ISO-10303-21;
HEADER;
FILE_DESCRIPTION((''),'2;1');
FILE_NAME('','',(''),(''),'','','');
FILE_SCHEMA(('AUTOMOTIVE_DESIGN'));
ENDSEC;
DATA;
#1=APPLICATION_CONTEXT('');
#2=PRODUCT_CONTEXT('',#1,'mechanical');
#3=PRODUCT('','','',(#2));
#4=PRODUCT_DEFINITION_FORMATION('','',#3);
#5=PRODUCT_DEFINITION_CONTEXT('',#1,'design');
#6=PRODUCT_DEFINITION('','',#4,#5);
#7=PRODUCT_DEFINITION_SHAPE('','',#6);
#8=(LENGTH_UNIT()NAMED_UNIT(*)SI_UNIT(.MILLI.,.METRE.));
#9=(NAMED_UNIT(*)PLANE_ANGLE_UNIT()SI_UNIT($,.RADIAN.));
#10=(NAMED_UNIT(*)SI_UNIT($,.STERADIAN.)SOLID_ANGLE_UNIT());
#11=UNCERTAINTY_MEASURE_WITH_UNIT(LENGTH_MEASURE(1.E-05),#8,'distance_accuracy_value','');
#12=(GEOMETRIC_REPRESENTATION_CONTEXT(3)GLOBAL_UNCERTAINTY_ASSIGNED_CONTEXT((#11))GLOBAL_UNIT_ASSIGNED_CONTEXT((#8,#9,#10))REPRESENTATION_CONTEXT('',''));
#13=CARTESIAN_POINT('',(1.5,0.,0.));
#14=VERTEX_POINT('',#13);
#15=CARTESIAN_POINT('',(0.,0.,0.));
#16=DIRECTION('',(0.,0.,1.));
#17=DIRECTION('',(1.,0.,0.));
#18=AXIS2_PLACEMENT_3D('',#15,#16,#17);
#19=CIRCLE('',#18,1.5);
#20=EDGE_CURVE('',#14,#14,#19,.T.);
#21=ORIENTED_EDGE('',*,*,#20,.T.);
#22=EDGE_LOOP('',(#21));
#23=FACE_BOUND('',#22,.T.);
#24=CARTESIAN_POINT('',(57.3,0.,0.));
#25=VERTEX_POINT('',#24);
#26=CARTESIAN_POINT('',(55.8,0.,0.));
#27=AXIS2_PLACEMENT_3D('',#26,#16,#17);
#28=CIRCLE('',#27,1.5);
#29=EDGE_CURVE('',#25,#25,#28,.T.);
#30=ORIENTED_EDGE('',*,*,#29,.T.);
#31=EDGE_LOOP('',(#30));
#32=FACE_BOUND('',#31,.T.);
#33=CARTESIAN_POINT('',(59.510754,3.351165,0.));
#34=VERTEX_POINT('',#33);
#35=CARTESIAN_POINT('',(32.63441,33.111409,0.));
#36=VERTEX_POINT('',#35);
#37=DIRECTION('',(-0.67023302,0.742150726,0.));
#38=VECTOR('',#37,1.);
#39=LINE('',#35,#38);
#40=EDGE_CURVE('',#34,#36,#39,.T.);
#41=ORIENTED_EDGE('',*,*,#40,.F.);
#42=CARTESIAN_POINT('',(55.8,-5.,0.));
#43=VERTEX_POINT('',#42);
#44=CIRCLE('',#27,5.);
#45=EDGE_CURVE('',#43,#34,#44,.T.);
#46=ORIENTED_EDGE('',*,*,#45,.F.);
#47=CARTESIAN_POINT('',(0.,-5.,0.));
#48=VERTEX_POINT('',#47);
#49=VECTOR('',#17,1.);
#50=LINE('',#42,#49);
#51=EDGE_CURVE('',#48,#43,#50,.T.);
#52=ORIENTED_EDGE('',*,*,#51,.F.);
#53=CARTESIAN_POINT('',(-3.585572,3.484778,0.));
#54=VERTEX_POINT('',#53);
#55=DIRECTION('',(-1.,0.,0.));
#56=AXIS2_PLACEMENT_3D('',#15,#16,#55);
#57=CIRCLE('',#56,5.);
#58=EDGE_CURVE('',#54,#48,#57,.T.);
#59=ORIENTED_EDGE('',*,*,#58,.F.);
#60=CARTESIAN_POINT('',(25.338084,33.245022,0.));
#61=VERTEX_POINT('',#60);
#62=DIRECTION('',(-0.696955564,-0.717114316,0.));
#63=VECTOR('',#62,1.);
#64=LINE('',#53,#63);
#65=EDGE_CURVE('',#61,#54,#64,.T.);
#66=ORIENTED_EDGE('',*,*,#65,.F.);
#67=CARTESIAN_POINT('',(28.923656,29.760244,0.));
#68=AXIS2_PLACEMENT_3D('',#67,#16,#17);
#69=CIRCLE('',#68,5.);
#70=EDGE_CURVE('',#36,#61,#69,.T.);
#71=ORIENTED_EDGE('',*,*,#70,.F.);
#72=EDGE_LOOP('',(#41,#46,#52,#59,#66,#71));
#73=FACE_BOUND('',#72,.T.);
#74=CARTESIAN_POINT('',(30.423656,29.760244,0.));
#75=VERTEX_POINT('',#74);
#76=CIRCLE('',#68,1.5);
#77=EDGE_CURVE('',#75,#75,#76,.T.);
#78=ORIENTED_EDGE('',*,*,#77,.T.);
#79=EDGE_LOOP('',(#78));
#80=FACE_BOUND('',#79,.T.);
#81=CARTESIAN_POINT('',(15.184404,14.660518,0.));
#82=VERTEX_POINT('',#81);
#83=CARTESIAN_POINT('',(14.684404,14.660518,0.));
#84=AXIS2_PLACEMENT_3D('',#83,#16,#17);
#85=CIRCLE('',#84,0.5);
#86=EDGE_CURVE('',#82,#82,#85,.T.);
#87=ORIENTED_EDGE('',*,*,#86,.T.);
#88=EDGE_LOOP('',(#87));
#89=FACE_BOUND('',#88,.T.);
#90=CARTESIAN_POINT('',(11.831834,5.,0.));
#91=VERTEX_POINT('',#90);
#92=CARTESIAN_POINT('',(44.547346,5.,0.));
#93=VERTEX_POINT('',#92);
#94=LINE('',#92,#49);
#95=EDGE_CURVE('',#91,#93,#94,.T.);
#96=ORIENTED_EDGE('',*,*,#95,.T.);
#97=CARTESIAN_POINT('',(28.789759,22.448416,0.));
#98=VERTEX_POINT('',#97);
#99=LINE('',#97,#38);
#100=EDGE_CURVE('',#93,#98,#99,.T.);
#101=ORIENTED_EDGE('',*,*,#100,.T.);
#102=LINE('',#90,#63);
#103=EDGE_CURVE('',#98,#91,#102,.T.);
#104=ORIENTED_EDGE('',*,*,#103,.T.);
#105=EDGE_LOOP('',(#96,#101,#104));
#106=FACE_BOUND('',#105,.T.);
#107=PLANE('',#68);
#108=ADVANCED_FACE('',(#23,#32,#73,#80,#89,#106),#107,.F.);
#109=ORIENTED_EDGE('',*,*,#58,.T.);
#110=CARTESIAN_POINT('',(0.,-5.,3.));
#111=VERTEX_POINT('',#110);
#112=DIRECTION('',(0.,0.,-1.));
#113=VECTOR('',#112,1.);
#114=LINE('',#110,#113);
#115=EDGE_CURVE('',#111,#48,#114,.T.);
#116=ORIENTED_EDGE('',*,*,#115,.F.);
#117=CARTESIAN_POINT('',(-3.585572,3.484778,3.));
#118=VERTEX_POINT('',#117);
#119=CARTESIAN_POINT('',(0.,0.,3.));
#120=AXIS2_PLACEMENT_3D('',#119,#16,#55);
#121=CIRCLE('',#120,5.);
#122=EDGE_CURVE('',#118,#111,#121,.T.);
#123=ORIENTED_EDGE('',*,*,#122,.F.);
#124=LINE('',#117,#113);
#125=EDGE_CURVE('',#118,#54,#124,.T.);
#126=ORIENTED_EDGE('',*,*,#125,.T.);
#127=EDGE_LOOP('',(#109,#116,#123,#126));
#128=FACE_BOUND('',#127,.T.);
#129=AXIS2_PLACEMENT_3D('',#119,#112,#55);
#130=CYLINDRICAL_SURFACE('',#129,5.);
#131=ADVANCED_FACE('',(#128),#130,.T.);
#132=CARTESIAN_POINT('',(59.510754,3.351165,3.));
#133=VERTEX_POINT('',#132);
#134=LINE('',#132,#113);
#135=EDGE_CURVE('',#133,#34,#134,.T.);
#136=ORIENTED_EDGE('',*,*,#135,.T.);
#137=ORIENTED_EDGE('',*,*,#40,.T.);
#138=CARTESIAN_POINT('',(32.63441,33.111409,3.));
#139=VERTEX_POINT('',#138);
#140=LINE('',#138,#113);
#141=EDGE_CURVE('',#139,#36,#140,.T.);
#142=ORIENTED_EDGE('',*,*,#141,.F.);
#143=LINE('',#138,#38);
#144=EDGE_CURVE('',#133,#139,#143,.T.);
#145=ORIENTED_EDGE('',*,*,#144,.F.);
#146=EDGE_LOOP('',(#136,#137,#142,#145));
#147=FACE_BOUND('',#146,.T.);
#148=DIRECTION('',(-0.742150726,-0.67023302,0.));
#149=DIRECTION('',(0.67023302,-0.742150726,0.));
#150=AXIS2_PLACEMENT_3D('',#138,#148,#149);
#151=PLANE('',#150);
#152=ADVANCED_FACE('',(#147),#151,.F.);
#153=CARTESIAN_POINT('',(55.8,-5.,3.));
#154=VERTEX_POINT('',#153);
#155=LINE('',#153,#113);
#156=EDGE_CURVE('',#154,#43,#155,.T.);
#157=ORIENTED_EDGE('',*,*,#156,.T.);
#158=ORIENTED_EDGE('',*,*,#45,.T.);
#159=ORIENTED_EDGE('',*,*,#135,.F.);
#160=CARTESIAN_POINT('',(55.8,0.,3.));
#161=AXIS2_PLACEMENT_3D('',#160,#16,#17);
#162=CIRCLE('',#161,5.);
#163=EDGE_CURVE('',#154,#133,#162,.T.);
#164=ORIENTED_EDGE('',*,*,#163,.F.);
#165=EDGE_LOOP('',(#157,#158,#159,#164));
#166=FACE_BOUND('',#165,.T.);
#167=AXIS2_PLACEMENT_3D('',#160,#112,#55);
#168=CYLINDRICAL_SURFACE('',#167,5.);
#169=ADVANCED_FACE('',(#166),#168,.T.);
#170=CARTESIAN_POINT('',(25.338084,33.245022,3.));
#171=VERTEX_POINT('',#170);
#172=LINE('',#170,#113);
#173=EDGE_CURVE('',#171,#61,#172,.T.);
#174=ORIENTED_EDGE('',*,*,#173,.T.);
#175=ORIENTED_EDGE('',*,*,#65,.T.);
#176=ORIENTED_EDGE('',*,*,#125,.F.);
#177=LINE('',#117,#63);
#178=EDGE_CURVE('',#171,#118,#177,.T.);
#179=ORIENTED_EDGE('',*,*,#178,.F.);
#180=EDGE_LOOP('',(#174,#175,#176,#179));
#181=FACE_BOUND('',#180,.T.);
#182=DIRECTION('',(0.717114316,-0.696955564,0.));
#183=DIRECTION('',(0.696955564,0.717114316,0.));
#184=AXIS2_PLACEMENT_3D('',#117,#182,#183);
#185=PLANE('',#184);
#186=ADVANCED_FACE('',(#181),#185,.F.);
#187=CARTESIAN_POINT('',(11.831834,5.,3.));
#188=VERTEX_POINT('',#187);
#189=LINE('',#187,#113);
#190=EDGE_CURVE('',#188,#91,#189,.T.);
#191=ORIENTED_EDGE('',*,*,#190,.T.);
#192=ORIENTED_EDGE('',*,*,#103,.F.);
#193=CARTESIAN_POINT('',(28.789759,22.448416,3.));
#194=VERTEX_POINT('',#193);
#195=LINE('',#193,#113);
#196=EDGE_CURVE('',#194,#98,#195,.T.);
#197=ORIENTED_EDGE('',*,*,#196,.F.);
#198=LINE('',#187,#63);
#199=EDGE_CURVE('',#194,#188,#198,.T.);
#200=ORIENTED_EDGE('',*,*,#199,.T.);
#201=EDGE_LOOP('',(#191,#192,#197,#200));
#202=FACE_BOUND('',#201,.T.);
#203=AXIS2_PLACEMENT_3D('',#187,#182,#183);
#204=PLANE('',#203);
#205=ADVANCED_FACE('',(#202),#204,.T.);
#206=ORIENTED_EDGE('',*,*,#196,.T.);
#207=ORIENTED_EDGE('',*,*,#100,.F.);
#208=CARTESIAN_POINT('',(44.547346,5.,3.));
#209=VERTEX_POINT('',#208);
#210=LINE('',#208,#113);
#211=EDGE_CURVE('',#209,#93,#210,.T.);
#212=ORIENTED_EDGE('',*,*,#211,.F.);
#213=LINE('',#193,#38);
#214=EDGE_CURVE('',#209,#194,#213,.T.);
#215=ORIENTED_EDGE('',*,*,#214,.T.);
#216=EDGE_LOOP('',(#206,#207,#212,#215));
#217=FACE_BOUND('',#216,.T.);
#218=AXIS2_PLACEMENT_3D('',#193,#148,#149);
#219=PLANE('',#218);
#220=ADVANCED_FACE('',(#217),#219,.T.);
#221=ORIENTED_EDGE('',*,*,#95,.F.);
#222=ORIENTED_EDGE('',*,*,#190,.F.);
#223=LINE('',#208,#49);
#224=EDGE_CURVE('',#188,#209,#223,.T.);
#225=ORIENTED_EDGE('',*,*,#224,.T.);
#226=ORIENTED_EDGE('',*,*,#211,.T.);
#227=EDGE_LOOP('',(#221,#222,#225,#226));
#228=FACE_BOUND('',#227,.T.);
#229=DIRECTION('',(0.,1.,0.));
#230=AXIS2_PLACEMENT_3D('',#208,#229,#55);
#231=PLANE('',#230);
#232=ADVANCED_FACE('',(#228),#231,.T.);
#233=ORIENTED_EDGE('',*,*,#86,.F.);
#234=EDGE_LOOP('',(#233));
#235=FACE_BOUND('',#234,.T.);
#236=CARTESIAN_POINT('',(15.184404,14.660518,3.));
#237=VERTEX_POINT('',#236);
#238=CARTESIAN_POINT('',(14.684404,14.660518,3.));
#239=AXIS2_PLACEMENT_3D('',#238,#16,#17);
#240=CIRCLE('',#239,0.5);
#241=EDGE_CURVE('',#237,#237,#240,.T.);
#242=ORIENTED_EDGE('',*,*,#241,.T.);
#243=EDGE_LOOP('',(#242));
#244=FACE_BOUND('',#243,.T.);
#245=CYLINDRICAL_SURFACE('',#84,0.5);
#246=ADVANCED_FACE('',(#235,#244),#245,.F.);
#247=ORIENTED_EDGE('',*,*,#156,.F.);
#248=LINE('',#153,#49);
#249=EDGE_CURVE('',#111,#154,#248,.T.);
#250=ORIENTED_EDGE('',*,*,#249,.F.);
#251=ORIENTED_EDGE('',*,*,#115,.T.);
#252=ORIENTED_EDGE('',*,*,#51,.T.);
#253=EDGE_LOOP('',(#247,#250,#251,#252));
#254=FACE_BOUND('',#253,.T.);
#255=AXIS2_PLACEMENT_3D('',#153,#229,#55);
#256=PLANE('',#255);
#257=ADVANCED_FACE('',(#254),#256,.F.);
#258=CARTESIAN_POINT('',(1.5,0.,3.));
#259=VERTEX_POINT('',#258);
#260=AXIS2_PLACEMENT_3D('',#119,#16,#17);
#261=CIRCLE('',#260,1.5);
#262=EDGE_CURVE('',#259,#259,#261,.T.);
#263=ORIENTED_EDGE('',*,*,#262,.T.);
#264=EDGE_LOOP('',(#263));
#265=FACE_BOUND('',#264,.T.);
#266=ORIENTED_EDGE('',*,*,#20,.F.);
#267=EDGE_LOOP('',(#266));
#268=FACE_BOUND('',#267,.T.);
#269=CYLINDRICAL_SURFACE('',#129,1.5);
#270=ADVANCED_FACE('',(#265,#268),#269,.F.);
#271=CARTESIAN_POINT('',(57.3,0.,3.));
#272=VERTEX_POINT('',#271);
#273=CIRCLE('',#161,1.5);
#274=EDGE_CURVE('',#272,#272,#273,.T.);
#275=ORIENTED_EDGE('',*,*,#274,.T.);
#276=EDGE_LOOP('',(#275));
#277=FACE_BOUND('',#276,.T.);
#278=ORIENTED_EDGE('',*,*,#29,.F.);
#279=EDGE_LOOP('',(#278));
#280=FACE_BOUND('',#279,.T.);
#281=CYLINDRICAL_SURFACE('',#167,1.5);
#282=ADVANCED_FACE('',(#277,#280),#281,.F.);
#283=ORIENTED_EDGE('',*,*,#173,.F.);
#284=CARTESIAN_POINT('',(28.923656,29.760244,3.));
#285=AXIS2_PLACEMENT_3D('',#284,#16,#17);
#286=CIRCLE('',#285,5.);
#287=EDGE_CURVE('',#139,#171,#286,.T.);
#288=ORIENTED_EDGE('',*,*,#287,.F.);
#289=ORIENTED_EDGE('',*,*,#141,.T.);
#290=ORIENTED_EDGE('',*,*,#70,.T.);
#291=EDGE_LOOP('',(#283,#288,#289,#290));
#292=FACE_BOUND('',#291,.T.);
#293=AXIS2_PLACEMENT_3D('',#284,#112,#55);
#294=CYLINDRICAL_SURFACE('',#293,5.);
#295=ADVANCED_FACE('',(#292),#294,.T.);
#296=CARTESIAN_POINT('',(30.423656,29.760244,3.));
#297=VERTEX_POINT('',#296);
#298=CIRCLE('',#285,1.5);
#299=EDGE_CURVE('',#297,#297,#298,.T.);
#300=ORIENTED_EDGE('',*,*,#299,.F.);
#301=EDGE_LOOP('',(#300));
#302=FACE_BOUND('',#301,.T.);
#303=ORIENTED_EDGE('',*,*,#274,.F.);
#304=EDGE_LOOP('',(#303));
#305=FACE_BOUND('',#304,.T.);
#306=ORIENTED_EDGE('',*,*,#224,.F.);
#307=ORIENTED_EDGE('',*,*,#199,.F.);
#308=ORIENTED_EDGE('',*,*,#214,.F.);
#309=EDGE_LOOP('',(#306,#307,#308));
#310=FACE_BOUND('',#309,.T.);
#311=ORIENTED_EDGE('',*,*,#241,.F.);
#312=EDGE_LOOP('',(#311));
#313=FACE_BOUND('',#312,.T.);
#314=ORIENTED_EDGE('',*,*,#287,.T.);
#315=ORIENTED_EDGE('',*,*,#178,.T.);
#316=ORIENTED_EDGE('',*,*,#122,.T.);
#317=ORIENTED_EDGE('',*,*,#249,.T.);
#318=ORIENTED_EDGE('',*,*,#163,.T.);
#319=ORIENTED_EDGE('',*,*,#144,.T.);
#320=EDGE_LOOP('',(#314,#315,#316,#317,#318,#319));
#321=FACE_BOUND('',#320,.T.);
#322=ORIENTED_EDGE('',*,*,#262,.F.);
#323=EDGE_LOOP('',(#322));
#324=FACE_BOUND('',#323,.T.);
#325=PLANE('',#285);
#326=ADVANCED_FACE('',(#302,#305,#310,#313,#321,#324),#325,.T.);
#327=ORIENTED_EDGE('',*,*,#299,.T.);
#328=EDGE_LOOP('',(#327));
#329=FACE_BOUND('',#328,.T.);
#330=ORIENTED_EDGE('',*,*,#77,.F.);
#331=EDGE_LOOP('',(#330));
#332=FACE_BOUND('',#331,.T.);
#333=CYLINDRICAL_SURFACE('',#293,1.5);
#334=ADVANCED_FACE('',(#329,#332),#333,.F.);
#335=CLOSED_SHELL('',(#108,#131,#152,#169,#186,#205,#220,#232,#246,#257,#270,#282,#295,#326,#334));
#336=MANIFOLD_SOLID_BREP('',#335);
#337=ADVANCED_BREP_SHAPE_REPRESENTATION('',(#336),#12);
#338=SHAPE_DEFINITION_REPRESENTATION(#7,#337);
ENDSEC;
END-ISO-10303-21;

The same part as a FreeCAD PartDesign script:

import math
import FreeCAD as App
import Part
import Sketcher

V = App.Vector

doc = App.newDocument("Part")
body = doc.addObject("PartDesign::Body", "Body")

# Sketch on XY plane
sketch1 = body.newObject("Sketcher::SketchObject", "Sketch")
sketch1.AttachmentSupport = (doc.getObject("XY_Plane"), [""])
sketch1.MapMode = "FlatFace"
sketch1.addGeometry([
    Part.LineSegment(V(25.3, 33.2, 0), V(-3.6, 3.5, 0)),  # 0
    Part.ArcOfCircle(Part.Circle(V(0, 0, 0), V(0, 0, 1), 5), math.radians(136), math.radians(270)),  # 1
    Part.LineSegment(V(0, -5, 0), V(55.8, -5, 0)),  # 2
    Part.ArcOfCircle(Part.Circle(V(55.8, 0, 0), V(0, 0, 1), 5), math.radians(-90), math.radians(42)),  # 3
    Part.LineSegment(V(59.5, 3.4, 0), V(32.6, 33.1, 0)),  # 4
    Part.ArcOfCircle(Part.Circle(V(28.9, 29.8, 0), V(0, 0, 1), 5), math.radians(42), math.radians(136)),  # 5
    Part.Circle(V(55.8, 0, 0), V(0, 0, 1), 1.5),  # 6
    Part.LineSegment(V(11.8, 5, 0), V(28.8, 22.4, 0)),  # 7
    Part.LineSegment(V(28.8, 22.4, 0), V(44.5, 5, 0)),  # 8
    Part.LineSegment(V(44.5, 5, 0), V(11.8, 5, 0)),  # 9
    Part.Circle(V(0, 0, 0), V(0, 0, 1), 1.5),  # 10
    Part.Circle(V(28.9, 29.8, 0), V(0, 0, 1), 1.5),  # 11
], False)
sketch1.addConstraint([
    Sketcher.Constraint("Tangent", 0, 2, 1, 1),
    Sketcher.Constraint("Tangent", 1, 2, 2, 1),
    Sketcher.Constraint("Tangent", 2, 2, 3, 1),
    Sketcher.Constraint("Tangent", 3, 2, 4, 1),
    Sketcher.Constraint("Tangent", 4, 2, 5, 1),
    Sketcher.Constraint("Tangent", 5, 2, 0, 1),
    Sketcher.Constraint("Coincident", 7, 2, 8, 1),
    Sketcher.Constraint("Coincident", 8, 2, 9, 1),
    Sketcher.Constraint("Coincident", 9, 2, 7, 1),
    Sketcher.Constraint("Horizontal", 2),
    Sketcher.Constraint("Horizontal", 9),
    Sketcher.Constraint("Coincident", 1, 3, -1, 1),
    Sketcher.Constraint("Coincident", 10, 3, -1, 1),
    Sketcher.Constraint("Coincident", 6, 3, 3, 3),
    Sketcher.Constraint("Coincident", 11, 3, 5, 3),
    Sketcher.Constraint("Equal", 1, 3),
    Sketcher.Constraint("Equal", 3, 5),
    Sketcher.Constraint("Equal", 6, 10),
    Sketcher.Constraint("Equal", 10, 11),
    Sketcher.Constraint("Parallel", 0, 7),
    Sketcher.Constraint("Parallel", 4, 8),
    Sketcher.Constraint("Diameter", 6, 3.0),
    Sketcher.Constraint("Radius", 1, 5.0),
    Sketcher.Constraint("DistanceX", 2, 1, 2, 2, 55.8),
    Sketcher.Constraint("DistanceY", -1, 1, 8, 2, 5.0),
    Sketcher.Constraint("Distance", 0, 41.5),
    Sketcher.Constraint("Distance", 4, 40.1),
    Sketcher.Constraint("DistanceX", 9, 2, 9, 1, 32.715512),
    Sketcher.Constraint("DistanceX", -1, 1, 7, 2, 28.789759),
])
pad1 = body.newObject("PartDesign::Pad", "Pad")
pad1.Profile = sketch1
pad1.Length = 3

# Sketch on XY plane
sketch2 = body.newObject("Sketcher::SketchObject", "Sketch001")
sketch2.AttachmentSupport = (doc.getObject("XY_Plane"), [""])
sketch2.MapMode = "FlatFace"
sketch2.AttachmentOffset = App.Placement(V(0, 0, 3), App.Rotation())
sketch2.addGeometry(Part.Circle(V(14.7, 14.7, 0), V(0, 0, 1), 0.5), False)
sketch2.addConstraint([
    Sketcher.Constraint("Diameter", 0, 1.0),
    Sketcher.Constraint("DistanceX", -1, 1, 0, 3, 14.684404),
    Sketcher.Constraint("DistanceY", -1, 1, 0, 3, 14.660518),
])
pocket1 = body.newObject("PartDesign::Pocket", "Pocket")
pocket1.Profile = sketch2
pocket1.Type = "ThroughAll"

doc.recompute()
